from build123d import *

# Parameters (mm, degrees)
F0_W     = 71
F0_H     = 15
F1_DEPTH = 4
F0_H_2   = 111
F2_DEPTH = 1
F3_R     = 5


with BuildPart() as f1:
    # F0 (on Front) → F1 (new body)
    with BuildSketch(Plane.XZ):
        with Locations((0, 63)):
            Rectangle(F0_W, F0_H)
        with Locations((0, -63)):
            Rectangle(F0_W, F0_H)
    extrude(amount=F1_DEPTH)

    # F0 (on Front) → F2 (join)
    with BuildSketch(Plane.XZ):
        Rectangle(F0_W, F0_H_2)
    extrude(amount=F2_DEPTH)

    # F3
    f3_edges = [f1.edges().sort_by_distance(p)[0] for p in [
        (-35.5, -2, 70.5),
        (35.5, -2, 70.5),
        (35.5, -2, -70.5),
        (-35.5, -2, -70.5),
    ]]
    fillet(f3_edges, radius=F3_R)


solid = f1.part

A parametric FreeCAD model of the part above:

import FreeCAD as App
import Part
import Sketcher
from FreeCAD import Vector
Q = App.Units.Quantity


def edges_at(feature, points):
    """Names of the edges that pass closest to the given points."""
    edges = feature.Shape.Edges
    near = lambda p: min(range(len(edges)), key=lambda i: edges[i].distToShape(Part.Vertex(*p))[0])
    return sorted({f"Edge{near(p) + 1}" for p in points})


def add_polygon(sketch, points):
    """Adds a closed chain of lines whose ends are joined by coincident constraints."""
    first, n = sketch.GeometryCount, len(points)
    for a, b in zip(points, points[1:] + points[:1]):
        sketch.addGeometry(Part.LineSegment(App.Vector(*a, 0), App.Vector(*b, 0)), False)
    for i in range(n):
        sketch.addConstraint(Sketcher.Constraint("Coincident", first + i, 2, first + (i + 1) % n, 1))

doc = App.newDocument("Part")
body = doc.addObject("PartDesign::Body", "Body")
body.AllowCompound = True

# Sketch on XZ plane
sketch1 = body.newObject("Sketcher::SketchObject", "Sketch")
sketch1.AttachmentSupport = (doc.getObject("XZ_Plane"), [""])
sketch1.MapMode = "FlatFace"
add_polygon(sketch1, [(-35.5, 70.5), (-35.5, 55.5), (35.5, 55.5), (35.5, 70.5)])  # lines 0-3
add_polygon(sketch1, [(-35.5, -55.5), (-35.5, -70.5), (35.5, -70.5), (35.5, -55.5)])  # lines 4-7
sketch1.addConstraint(Sketcher.Constraint("Vertical", 0))
sketch1.addConstraint(Sketcher.Constraint("Horizontal", 1))
sketch1.addConstraint(Sketcher.Constraint("Vertical", 2))
sketch1.addConstraint(Sketcher.Constraint("Horizontal", 3))
sketch1.addConstraint(Sketcher.Constraint("Vertical", 4))
sketch1.addConstraint(Sketcher.Constraint("Horizontal", 5))
sketch1.addConstraint(Sketcher.Constraint("Vertical", 6))
sketch1.addConstraint(Sketcher.Constraint("Horizontal", 7))
sketch1.addConstraint(Sketcher.Constraint("Symmetric", 2, 2, 4, 2, -1, 1))
sketch1.addConstraint(Sketcher.Constraint("Symmetric", 0, 2, 6, 2, -1, 1))
sketch1.addConstraint(Sketcher.Constraint("Vertical", 3, 2, 4, 2))
sketch1.addConstraint(Sketcher.Constraint("DistanceX", 1, 1, 1, 2, Q("71 mm")))
sketch1.addConstraint(Sketcher.Constraint("DistanceY", 0, 2, 0, 1, Q("15 mm")))
sketch1.addConstraint(Sketcher.Constraint("DistanceY", 4, 2, 0, 2, Q("126 mm")))
pad1 = body.newObject("PartDesign::Pad", "Pad")
pad1.Profile = sketch1
pad1.Length = 4

# Sketch on XZ plane
sketch2 = body.newObject("Sketcher::SketchObject", "Sketch001")
sketch2.AttachmentSupport = (doc.getObject("XZ_Plane"), [""])
sketch2.MapMode = "FlatFace"
add_polygon(sketch2, [(-35.5, 55.5), (-35.5, -55.5), (35.5, -55.5), (35.5, 55.5)])  # lines 0-3
sketch2.addConstraint(Sketcher.Constraint("Vertical", 0))
sketch2.addConstraint(Sketcher.Constraint("Horizontal", 1))
sketch2.addConstraint(Sketcher.Constraint("Vertical", 2))
sketch2.addConstraint(Sketcher.Constraint("Horizontal", 3))
sketch2.addConstraint(Sketcher.Constraint("Symmetric", 0, 2, 2, 2, -1, 1))
sketch2.addConstraint(Sketcher.Constraint("DistanceX", 1, 1, 1, 2, Q("71 mm")))
sketch2.addConstraint(Sketcher.Constraint("DistanceY", 0, 2, 0, 1, Q("111 mm")))
pad2 = body.newObject("PartDesign::Pad", "Pad001")
pad2.Profile = sketch2
pad2.Length = 1
doc.recompute()

fillet = body.newObject("PartDesign::Fillet", "Fillet")
fillet.Base = (pad2, edges_at(pad2, [
    (-35.5, -2, 70.5),
    (35.5, -2, 70.5),
    (35.5, -2, -70.5),
    (-35.5, -2, -70.5),
]))
fillet.Radius = 5

doc.recompute()
